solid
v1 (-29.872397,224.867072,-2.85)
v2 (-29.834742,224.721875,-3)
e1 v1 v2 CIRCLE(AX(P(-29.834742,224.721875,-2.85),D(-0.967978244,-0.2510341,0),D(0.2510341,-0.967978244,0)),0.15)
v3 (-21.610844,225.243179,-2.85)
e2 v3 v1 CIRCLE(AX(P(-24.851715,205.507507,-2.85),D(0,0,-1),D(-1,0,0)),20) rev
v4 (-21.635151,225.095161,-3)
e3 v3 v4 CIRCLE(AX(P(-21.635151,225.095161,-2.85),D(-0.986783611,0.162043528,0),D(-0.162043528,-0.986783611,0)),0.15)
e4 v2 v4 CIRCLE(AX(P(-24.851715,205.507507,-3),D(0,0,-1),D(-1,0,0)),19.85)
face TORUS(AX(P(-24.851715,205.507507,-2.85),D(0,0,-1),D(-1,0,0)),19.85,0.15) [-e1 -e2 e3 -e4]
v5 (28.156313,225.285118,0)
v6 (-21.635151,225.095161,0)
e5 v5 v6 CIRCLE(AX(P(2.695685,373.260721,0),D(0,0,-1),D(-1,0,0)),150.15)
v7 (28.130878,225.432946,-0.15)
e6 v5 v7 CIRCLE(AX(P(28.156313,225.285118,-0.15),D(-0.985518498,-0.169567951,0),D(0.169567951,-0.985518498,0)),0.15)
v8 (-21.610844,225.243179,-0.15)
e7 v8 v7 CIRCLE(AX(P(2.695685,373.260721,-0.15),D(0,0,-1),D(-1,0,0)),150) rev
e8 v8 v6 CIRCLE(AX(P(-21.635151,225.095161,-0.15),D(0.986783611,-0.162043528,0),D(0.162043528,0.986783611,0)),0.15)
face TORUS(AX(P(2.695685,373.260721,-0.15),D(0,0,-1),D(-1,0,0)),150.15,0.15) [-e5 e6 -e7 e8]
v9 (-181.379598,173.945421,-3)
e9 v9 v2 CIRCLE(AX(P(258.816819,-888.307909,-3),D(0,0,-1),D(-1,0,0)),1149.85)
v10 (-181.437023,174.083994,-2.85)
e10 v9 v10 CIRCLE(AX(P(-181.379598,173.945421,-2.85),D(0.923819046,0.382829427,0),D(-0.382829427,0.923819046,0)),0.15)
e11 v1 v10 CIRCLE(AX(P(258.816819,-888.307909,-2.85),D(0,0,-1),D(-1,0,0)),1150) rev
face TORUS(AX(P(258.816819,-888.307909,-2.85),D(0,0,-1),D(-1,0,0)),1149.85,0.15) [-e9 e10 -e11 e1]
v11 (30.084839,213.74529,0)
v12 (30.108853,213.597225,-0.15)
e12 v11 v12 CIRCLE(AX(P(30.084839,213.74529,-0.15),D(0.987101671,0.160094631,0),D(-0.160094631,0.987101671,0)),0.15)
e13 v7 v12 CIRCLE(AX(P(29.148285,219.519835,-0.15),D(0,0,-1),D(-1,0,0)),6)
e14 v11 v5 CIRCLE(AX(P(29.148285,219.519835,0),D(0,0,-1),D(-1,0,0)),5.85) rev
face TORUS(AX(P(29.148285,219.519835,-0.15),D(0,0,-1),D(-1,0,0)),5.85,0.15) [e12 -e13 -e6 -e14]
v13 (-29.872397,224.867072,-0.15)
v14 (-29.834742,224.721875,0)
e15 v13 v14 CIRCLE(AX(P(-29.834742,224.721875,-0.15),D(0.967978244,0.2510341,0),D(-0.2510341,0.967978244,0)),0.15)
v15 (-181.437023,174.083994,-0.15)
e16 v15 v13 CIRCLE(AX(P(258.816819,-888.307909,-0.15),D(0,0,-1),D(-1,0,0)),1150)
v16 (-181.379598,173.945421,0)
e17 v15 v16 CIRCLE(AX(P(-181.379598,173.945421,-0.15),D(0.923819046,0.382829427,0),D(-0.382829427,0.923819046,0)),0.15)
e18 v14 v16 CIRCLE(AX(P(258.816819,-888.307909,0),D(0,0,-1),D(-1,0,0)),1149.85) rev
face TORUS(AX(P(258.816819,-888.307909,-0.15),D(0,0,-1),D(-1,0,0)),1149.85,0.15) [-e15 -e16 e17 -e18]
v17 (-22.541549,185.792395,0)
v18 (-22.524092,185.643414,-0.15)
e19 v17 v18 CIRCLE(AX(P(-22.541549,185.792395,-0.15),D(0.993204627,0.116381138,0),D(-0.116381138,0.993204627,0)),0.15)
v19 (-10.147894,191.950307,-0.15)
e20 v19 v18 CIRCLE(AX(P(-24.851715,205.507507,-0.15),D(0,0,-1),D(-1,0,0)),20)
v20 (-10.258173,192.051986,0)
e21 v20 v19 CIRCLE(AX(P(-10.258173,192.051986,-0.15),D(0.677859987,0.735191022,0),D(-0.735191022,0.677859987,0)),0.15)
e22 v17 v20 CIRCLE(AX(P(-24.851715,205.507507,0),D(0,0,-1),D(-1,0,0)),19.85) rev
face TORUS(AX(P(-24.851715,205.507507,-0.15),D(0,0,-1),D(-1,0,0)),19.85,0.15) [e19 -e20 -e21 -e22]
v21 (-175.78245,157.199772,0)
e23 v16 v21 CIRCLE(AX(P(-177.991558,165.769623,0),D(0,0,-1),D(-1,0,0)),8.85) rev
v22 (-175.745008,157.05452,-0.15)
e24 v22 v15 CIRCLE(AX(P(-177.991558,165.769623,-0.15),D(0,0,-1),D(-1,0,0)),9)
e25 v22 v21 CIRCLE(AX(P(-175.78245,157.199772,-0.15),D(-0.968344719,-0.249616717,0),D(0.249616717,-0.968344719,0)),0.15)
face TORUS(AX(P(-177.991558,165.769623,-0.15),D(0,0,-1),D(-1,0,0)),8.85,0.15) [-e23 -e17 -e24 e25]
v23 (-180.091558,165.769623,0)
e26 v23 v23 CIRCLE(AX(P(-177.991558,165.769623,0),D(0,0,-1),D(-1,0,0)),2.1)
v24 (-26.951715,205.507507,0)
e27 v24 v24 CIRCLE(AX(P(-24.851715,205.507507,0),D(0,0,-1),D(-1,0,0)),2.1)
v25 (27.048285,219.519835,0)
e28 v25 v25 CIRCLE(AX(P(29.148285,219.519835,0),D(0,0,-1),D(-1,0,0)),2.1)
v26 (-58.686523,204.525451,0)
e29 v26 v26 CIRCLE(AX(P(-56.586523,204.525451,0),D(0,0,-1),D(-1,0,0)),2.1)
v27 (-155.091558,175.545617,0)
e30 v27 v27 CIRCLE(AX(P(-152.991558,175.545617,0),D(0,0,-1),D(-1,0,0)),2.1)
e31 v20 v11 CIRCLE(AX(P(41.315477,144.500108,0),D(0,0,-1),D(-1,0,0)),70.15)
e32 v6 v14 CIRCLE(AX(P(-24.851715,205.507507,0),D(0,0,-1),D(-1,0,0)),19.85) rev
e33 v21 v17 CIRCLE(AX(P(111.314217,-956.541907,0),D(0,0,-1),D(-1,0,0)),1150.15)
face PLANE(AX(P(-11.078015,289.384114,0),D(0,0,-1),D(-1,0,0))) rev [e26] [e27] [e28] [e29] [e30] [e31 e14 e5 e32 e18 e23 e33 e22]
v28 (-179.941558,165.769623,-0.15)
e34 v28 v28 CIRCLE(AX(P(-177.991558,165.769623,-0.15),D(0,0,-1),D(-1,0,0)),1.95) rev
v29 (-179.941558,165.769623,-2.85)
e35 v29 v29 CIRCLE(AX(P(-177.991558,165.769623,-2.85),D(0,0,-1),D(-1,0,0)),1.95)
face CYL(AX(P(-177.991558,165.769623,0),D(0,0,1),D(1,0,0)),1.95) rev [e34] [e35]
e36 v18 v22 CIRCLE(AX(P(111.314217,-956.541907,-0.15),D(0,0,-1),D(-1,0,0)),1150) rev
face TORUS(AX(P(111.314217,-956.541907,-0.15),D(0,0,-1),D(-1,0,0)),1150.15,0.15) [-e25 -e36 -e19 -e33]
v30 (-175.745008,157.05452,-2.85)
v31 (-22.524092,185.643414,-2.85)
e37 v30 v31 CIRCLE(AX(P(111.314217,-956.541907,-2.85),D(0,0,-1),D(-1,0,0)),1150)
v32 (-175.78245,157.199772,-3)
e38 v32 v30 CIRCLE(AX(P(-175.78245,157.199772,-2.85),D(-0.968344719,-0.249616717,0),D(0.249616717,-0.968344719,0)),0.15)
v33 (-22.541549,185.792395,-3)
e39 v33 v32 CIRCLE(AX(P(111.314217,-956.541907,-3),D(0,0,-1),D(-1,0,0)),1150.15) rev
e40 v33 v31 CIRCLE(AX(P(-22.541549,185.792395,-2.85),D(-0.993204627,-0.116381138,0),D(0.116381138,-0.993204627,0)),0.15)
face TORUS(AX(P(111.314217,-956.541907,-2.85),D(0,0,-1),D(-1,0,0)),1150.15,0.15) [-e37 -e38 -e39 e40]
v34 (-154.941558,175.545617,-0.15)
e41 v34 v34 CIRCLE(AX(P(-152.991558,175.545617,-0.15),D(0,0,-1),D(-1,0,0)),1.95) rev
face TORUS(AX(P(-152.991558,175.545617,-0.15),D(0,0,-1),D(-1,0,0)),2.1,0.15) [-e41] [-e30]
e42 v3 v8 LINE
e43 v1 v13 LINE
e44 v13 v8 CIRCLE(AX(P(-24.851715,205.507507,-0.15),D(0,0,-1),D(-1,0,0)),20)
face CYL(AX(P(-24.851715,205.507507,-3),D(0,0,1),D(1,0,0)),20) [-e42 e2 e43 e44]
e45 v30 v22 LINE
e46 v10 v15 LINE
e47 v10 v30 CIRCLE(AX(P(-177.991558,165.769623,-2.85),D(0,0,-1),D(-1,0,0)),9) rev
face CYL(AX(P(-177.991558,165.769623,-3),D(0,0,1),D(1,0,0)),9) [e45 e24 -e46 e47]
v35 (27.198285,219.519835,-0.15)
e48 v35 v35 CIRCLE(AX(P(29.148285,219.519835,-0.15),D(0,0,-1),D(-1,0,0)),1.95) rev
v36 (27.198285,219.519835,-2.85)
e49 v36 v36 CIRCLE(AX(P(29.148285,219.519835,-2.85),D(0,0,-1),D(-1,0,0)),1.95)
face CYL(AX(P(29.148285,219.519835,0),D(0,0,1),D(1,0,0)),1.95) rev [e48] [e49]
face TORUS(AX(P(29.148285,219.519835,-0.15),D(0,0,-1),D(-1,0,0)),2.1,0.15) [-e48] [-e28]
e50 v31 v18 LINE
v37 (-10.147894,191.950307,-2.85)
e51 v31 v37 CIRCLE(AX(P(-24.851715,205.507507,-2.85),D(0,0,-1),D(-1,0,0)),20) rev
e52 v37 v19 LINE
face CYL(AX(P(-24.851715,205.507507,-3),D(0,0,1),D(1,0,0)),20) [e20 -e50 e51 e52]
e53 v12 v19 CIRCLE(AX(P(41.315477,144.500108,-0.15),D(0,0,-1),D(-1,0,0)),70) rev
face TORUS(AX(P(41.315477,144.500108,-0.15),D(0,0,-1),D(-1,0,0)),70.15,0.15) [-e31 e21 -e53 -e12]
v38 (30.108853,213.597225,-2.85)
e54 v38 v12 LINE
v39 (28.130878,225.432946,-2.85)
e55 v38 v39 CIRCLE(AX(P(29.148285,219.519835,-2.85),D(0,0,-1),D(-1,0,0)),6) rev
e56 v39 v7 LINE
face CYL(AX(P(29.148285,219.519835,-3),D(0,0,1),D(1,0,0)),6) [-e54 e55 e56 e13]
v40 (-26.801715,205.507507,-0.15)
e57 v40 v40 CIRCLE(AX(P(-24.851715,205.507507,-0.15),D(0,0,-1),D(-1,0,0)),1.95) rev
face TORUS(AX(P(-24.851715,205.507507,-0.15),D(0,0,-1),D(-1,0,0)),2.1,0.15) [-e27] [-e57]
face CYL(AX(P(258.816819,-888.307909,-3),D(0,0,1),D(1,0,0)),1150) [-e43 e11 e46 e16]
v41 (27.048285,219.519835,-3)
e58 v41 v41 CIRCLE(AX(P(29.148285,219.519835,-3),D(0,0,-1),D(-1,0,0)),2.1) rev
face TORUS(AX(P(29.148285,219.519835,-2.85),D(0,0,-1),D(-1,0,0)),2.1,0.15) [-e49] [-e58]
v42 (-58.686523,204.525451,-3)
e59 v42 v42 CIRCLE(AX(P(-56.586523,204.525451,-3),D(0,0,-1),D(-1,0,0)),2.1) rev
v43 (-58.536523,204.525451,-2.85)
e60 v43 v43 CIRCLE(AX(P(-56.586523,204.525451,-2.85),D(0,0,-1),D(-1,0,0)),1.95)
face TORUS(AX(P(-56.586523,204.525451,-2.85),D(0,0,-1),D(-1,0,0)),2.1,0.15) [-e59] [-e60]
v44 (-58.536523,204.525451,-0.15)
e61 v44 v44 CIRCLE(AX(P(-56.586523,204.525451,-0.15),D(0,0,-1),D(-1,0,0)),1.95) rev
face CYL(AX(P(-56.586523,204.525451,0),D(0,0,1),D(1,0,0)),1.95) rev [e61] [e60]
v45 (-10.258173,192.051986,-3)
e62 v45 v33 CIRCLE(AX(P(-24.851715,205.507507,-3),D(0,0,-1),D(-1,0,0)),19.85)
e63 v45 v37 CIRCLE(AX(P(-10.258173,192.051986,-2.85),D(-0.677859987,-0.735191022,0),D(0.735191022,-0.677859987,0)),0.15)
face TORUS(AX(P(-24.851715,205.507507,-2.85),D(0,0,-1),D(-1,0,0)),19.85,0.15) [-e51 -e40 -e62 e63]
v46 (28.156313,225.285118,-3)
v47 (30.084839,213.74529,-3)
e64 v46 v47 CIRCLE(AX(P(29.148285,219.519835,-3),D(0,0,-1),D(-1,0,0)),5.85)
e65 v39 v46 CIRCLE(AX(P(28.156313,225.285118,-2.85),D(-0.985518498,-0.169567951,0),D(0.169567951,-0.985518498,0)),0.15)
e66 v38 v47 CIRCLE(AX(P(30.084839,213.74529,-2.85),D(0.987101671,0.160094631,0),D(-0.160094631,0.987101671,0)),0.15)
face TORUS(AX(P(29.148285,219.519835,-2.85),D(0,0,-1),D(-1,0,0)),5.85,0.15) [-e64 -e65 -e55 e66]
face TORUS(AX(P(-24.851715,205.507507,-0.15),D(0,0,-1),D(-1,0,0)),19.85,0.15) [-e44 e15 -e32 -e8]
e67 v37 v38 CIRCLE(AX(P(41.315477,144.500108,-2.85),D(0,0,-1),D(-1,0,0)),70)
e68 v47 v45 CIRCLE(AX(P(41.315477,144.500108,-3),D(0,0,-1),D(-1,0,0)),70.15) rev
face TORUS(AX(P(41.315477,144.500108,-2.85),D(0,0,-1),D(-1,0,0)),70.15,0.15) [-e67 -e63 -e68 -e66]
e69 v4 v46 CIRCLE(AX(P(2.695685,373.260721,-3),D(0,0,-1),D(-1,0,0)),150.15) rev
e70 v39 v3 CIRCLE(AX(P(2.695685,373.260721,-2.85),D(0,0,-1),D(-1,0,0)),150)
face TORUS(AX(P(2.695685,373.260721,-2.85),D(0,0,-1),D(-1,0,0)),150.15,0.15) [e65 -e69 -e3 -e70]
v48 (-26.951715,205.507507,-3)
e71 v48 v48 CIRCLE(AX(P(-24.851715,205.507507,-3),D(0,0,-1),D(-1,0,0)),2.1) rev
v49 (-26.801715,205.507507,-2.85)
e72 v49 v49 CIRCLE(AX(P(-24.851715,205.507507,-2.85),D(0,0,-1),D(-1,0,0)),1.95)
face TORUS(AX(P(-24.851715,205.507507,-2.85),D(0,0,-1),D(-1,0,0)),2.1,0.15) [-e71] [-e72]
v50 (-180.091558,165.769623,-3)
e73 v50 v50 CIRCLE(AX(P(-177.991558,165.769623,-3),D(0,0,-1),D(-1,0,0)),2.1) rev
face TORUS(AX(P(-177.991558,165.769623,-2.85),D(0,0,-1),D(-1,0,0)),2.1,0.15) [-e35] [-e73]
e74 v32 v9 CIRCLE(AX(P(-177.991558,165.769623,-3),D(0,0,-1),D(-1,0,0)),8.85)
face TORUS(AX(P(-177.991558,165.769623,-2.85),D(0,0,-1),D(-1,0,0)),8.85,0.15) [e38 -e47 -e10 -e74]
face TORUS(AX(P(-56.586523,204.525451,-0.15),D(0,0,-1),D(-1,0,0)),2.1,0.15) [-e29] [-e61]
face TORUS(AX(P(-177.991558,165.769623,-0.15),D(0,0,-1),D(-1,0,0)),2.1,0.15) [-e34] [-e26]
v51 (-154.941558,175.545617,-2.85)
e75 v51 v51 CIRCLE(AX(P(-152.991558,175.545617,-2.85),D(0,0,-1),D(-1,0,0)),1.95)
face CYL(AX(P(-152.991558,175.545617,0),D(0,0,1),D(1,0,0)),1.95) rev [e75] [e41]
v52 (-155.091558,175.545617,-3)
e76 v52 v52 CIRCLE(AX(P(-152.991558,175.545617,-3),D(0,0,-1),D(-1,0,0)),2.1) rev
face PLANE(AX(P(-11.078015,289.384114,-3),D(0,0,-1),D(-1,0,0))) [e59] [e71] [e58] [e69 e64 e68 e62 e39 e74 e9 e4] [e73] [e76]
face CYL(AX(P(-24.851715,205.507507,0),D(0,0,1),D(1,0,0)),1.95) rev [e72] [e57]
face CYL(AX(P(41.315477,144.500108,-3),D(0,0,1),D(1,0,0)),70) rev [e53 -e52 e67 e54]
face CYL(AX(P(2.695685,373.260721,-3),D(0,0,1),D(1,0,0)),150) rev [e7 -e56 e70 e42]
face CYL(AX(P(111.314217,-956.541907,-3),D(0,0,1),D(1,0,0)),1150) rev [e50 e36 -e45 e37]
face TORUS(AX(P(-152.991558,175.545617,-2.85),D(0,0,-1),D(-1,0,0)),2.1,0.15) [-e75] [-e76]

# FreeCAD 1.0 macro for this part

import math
import FreeCAD as App
import Part
import Sketcher
from FreeCAD import Vector


def edges_at(feature, points):
    """Names of the edges that pass closest to the given points."""
    edges = feature.Shape.Edges
    near = lambda p: min(range(len(edges)), key=lambda i: edges[i].distToShape(Part.Vertex(*p))[0])
    return sorted({f"Edge{near(p) + 1}" for p in points})

doc = App.newDocument("Part")
body = doc.addObject("PartDesign::Body", "Body")

# Sketch on XY plane
sketch1 = body.newObject("Sketcher::SketchObject", "Sketch")
sketch1.AttachmentSupport = (doc.getObject("XY_Plane"), [""])
sketch1.MapMode = "FlatFace"
sketch1.addGeometry([
    Part.ArcOfCircle(Part.Circle(Vector(259, -888, 0), Vector(0, 0, 1), 1150), math.radians(104.54), math.radians(112.51)),  # 0
    Part.ArcOfCircle(Part.Circle(Vector(-178, 166, 0), Vector(0, 0, 1), 9), math.radians(113), math.radians(284)),  # 1
    Part.ArcOfCircle(Part.Circle(Vector(111, -957, 0), Vector(0, 0, 1), 1150), math.radians(96.68), math.radians(104.45)),  # 2
    Part.ArcOfCircle(Part.Circle(Vector(-25, 206, 0), Vector(0, 0, 1), 20), math.radians(-83), math.radians(-43)),  # 3
    Part.ArcOfCircle(Part.Circle(Vector(41, 145, 0), Vector(0, 0, 1), 70), math.radians(99), math.radians(137)),  # 4
    Part.ArcOfCircle(Part.Circle(Vector(29, 220, 0), Vector(0, 0, 1), 6), math.radians(-81), math.radians(100)),  # 5
    Part.ArcOfCircle(Part.Circle(Vector(3, 373, 0), Vector(0, 0, 1), 150), math.radians(-99.33), math.radians(-80.24)),  # 6
    Part.ArcOfCircle(Part.Circle(Vector(-25, 206, 0), Vector(0, 0, 1), 20), math.radians(81), math.radians(105)),  # 7
], False)
sketch1.addConstraint([
    Sketcher.Constraint("Tangent", 0, 2, 1, 1),
    Sketcher.Constraint("Tangent", 1, 2, 2, 2),
    Sketcher.Constraint("Tangent", 2, 1, 3, 1),
    Sketcher.Constraint("Tangent", 3, 2, 4, 2),
    Sketcher.Constraint("Tangent", 4, 1, 5, 1),
    Sketcher.Constraint("Tangent", 5, 2, 6, 2),
    Sketcher.Constraint("Tangent", 6, 1, 7, 1),
    Sketcher.Constraint("Tangent", 7, 2, 0, 1),
    Sketcher.Constraint("Coincident", 7, 3, 3, 3),
    Sketcher.Constraint("Equal", 0, 2),
    Sketcher.Constraint("Equal", 3, 7),
    Sketcher.Constraint("Radius", 0, 1150.0),
    Sketcher.Constraint("Radius", 1, 9.0),
    Sketcher.Constraint("Radius", 3, 20.0),
    Sketcher.Constraint("Radius", 4, 70.0),
    Sketcher.Constraint("Radius", 5, 6.0),
    Sketcher.Constraint("Radius", 6, 150.0),
    Sketcher.Constraint("DistanceX", 3, 3, 5, 3, 54.0),
    Sketcher.Constraint("DistanceY", 2, 3, 0, 3, 68.233998),
    Sketcher.Constraint("DistanceX", 2, 3, 0, 3, 147.502602),
    Sketcher.Constraint("DistanceY", 4, 3, 3, 3, 61.007399),
    Sketcher.Constraint("DistanceX", -1, 1, 0, 3, 258.816819),
    Sketcher.Constraint("DistanceY", 0, 3, -1, 1, 888.307909),
])
pad1 = body.newObject("PartDesign::Pad", "Pad")
pad1.Profile = sketch1
pad1.Length = 3
pad1.Reversed = True

# Sketch on XY plane
sketch2 = body.newObject("Sketcher::SketchObject", "Sketch001")
sketch2.AttachmentSupport = (doc.getObject("XY_Plane"), [""])
sketch2.MapMode = "FlatFace"
sketch2.addGeometry([
    Part.Circle(Vector(-178, 165.8, 0), Vector(0, 0, 1), 1.9),  # 0
    Part.Circle(Vector(-153, 175.5, 0), Vector(0, 0, 1), 1.9),  # 1
    Part.Circle(Vector(-56.6, 204.5, 0), Vector(0, 0, 1), 1.9),  # 2
    Part.Circle(Vector(-24.9, 205.5, 0), Vector(0, 0, 1), 1.9),  # 3
    Part.Circle(Vector(29.1, 219.5, 0), Vector(0, 0, 1), 1.9),  # 4
], False)
sketch2.addConstraint([
    Sketcher.Constraint("Equal", 0, 1),
    Sketcher.Constraint("Equal", 1, 2),
    Sketcher.Constraint("Equal", 2, 3),
    Sketcher.Constraint("Equal", 3, 4),
    Sketcher.Constraint("Diameter", 0, 3.9),
    Sketcher.Constraint("DistanceX", 0, 3, 1, 3, 25.0),
    Sketcher.Constraint("DistanceX", 3, 3, 4, 3, 54.0),
    Sketcher.Constraint("DistanceY", -1, 1, 2, 3, 204.525451),
    Sketcher.Constraint("DistanceY", 0, 3, 2, 3, 38.755829),
    Sketcher.Constraint("DistanceX", 2, 3, 3, 3, 31.734808),
    Sketcher.Constraint("DistanceY", 1, 3, 3, 3, 29.961889),
    Sketcher.Constraint("DistanceY", 3, 3, 4, 3, 14.012328),
    Sketcher.Constraint("DistanceX", 0, 3, -1, 1, 177.991558),
    Sketcher.Constraint("DistanceY", -1, 1, 1, 3, 175.545617),
    Sketcher.Constraint("DistanceX", 2, 3, -1, 1, 56.586523),
])
doc.recompute()
hole = body.newObject("PartDesign::Hole", "Hole")
hole.Profile = sketch2
hole.ThreadType = "None"
hole.Diameter = 3.9
hole.DepthType = "ThroughAll"
doc.recompute()

fillet = body.newObject("PartDesign::Fillet", "Fillet")
fillet.Base = (hole, edges_at(hole, [
    (-99.619, 173.948, 0),
    (-186.527, 162.917, 0),
    (-106.538, 202.112, 0),
    (-25.761, 225.487, 0),
    (-186.527, 162.917, -3),
    (-99.619, 173.948, -3),
    (-15.771, 187.688, -3),
    (8.164, 206.152, -3),
    (35.066, 220.509, -3),
    (31.098, 219.52, 0),
    (31.098, 219.52, -3),
    (3.268, 223.262, -3),
    (-22.902, 205.508, 0),
    (-22.902, 205.508, -3),
    (-54.637, 204.525, 0),
    (-54.637, 204.525, -3),
    (-151.042, 175.546, 0),
    (-151.042, 175.546, -3),
    (-25.761, 225.487, -3),
    (-176.042, 165.77, 0),
    (-176.042, 165.77, -3),
    (3.268, 223.262, 0),
    (-106.538, 202.112, -3),
    (35.066, 220.509, 0),
    (8.164, 206.152, 0),
    (-15.771, 187.688, 0),
]))
fillet.Radius = 0.15

doc.recompute()
